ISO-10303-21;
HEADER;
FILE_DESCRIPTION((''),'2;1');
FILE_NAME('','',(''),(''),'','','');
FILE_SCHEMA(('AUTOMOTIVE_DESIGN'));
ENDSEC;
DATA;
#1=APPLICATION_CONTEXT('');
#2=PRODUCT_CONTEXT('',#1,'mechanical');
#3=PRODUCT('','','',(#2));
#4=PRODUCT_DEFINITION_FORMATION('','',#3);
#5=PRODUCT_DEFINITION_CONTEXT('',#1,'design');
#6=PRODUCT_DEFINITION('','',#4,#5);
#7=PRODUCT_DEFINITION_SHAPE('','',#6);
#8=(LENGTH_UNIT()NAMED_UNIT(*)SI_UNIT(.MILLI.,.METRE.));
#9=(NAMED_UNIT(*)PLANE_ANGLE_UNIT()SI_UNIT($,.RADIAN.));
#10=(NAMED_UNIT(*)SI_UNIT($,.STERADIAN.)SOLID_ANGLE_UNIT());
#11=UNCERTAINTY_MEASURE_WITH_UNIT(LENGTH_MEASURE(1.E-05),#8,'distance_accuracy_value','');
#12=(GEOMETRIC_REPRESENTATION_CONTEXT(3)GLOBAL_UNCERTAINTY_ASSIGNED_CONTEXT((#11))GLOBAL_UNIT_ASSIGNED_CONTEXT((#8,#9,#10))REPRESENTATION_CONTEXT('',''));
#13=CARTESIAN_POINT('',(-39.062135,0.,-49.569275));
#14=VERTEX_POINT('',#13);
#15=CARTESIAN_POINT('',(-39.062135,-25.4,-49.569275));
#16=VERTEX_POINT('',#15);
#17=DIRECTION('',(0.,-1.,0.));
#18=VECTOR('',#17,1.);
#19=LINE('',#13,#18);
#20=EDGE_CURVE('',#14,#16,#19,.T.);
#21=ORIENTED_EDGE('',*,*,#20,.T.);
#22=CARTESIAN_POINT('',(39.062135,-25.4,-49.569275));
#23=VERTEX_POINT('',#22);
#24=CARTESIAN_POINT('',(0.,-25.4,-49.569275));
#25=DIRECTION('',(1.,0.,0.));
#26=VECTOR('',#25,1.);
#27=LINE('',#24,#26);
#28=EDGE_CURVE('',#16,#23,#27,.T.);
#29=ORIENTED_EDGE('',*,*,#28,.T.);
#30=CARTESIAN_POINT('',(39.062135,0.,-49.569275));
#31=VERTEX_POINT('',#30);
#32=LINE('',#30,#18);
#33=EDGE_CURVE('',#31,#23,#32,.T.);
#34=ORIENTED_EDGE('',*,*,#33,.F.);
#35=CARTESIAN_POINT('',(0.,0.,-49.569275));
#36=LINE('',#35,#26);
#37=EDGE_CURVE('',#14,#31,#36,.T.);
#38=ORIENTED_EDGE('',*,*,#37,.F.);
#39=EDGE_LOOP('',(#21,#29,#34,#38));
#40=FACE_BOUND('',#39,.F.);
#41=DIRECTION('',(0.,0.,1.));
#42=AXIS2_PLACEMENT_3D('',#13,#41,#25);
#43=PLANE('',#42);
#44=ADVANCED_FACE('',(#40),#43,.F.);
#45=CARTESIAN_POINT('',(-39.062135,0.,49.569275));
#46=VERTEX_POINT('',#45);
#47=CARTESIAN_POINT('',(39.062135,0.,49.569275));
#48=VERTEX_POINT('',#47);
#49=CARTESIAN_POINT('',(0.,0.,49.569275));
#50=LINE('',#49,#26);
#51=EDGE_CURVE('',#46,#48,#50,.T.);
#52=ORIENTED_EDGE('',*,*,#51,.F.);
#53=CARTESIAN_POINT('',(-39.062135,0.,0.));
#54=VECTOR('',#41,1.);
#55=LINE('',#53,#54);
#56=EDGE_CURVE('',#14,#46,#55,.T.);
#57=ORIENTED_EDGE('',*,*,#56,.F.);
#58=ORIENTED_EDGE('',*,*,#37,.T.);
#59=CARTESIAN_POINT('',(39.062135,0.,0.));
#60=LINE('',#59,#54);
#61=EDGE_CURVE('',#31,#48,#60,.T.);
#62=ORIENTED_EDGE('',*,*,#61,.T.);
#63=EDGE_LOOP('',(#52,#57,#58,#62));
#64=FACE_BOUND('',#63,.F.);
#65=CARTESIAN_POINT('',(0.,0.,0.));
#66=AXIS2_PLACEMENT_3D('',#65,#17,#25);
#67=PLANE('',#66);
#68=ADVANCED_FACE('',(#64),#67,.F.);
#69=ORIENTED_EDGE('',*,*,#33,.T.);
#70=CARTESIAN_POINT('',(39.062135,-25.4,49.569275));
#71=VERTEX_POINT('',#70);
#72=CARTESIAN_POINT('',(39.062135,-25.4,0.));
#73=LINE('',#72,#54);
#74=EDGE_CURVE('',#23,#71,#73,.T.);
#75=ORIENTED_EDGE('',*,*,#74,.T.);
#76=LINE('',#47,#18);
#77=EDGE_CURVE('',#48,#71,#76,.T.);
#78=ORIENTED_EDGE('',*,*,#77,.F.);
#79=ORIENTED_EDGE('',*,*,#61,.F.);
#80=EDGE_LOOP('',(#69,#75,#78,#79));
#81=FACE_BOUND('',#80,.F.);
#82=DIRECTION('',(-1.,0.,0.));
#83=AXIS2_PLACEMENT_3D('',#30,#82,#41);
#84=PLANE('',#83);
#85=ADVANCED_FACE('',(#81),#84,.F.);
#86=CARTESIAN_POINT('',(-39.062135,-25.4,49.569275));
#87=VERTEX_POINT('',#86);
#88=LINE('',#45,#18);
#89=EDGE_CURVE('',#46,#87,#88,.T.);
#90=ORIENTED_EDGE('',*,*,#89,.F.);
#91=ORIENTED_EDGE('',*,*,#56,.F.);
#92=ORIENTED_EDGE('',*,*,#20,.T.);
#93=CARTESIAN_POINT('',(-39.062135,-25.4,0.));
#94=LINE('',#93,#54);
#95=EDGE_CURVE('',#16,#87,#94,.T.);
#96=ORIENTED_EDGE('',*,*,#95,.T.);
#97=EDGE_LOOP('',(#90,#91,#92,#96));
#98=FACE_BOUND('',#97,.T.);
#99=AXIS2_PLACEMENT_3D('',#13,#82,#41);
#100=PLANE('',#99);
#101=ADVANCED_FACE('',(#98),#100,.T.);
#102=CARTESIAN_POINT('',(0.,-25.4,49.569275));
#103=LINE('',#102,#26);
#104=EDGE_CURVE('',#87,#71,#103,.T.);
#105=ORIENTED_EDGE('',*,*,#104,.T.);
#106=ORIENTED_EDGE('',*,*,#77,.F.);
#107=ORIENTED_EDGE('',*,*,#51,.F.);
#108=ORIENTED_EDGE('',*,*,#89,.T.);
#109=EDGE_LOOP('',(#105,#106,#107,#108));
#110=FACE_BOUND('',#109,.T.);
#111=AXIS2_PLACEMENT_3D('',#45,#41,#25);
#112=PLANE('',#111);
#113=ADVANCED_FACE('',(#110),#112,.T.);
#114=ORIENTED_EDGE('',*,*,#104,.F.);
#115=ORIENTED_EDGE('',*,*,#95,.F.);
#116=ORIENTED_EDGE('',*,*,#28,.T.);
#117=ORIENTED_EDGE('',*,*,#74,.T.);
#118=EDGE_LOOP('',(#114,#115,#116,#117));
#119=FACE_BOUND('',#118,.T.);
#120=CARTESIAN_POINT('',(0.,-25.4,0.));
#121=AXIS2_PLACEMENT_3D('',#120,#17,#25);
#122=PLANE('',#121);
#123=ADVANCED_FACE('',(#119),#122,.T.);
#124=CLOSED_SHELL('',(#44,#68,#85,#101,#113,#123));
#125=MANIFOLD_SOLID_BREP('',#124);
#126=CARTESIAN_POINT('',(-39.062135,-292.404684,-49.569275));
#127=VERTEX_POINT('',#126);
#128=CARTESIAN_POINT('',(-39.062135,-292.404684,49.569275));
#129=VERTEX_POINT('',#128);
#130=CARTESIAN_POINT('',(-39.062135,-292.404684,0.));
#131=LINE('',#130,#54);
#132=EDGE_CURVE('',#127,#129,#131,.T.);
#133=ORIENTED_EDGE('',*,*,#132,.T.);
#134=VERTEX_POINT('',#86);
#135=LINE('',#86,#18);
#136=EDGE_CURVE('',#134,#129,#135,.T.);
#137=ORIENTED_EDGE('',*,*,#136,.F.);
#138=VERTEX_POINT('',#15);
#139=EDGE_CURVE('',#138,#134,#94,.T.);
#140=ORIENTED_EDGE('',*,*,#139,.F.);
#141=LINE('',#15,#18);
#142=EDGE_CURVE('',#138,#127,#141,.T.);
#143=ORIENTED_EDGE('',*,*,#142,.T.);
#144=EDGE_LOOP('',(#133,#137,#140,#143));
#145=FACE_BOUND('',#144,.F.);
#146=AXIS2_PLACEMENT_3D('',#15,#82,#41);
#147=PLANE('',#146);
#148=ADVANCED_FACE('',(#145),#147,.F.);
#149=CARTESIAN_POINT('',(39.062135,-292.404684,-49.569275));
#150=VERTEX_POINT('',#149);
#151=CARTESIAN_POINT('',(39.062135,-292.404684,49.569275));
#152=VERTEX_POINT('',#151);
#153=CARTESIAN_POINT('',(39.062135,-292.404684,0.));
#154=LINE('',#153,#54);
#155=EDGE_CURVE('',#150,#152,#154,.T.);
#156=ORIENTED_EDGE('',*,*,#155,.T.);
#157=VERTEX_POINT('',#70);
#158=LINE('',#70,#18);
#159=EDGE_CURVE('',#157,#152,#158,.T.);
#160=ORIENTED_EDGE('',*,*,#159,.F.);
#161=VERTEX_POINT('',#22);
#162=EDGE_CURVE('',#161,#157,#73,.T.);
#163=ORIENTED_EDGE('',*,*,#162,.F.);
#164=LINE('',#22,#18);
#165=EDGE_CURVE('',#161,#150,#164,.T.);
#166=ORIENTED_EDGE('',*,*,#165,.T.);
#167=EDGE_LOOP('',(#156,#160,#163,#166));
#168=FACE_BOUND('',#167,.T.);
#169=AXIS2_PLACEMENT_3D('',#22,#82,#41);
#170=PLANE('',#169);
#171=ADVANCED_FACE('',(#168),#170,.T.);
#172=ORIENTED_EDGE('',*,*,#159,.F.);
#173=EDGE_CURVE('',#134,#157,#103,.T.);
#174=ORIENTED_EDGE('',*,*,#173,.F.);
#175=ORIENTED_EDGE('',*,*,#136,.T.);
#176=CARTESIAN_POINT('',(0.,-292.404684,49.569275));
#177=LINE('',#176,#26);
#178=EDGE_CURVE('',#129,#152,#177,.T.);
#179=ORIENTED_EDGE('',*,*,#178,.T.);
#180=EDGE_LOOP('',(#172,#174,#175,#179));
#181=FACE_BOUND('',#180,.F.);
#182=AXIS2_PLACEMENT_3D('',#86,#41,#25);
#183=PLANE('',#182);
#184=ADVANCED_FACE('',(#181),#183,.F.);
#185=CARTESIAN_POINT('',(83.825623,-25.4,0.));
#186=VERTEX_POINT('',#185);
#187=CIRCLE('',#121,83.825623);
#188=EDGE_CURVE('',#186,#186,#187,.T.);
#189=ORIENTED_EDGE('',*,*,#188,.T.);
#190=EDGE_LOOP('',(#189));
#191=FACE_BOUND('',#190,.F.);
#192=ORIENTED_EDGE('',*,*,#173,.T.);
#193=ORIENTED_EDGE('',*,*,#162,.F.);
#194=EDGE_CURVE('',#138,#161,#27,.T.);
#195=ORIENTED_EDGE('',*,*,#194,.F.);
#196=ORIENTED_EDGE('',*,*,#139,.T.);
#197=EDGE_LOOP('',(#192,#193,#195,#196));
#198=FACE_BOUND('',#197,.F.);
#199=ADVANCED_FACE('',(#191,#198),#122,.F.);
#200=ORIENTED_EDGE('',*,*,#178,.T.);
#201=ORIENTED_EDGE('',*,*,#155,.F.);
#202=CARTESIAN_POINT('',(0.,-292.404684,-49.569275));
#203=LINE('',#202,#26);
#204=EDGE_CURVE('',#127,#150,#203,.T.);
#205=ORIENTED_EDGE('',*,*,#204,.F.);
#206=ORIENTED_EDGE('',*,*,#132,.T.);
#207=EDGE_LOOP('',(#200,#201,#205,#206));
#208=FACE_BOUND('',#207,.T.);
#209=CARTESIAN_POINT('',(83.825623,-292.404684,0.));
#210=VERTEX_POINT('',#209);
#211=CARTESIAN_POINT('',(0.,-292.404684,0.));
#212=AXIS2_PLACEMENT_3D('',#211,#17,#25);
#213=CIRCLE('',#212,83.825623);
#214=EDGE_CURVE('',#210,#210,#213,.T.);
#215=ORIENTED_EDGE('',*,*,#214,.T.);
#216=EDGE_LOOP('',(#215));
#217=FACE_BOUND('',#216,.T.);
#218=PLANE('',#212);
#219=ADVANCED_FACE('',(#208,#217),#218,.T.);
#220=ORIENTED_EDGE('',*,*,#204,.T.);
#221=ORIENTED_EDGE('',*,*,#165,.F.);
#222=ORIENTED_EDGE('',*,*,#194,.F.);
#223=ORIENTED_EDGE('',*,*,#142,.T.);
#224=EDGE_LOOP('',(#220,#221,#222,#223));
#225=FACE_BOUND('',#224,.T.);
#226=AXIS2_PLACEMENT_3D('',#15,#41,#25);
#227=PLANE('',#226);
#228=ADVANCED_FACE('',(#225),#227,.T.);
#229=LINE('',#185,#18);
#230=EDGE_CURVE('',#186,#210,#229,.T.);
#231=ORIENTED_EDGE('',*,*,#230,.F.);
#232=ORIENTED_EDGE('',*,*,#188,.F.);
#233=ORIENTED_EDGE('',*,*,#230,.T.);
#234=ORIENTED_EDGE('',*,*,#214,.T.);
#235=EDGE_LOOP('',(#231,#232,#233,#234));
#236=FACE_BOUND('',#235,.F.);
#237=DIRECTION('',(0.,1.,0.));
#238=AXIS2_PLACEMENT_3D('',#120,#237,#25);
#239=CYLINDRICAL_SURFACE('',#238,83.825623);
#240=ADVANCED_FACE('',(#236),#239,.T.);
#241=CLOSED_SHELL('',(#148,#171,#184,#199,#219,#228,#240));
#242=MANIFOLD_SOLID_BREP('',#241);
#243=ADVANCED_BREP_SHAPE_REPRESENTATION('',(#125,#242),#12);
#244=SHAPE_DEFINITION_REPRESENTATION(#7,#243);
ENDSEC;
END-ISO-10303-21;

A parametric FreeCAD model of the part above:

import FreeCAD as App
import Part
import Sketcher

V = App.Vector
Q = App.Units.Quantity


def add_polygon(sketch, points):
    """Adds a closed chain of lines whose ends are joined by coincident constraints."""
    first, n = sketch.GeometryCount, len(points)
    for a, b in zip(points, points[1:] + points[:1]):
        sketch.addGeometry(Part.LineSegment(App.Vector(*a, 0), App.Vector(*b, 0)), False)
    for i in range(n):
        sketch.addConstraint(Sketcher.Constraint("Coincident", first + i, 2, first + (i + 1) % n, 1))

doc = App.newDocument("Part")
body = doc.addObject("PartDesign::Body", "Body")

# Sketch on XZ plane
sketch1 = doc.addObject("Sketcher::SketchObject", "Sketch")
body.addObject(sketch1)
sketch1.AttachmentSupport = (doc.XZ_Plane, [""])
sketch1.MapMode = "FlatFace"
add_polygon(sketch1, [(-39, 50), (-39, -50), (39, -50), (39, 50)])  # lines 0-3
sketch1.addConstraint([
    Sketcher.Constraint("Vertical", 0),
    Sketcher.Constraint("Horizontal", 1),
    Sketcher.Constraint("Vertical", 2),
    Sketcher.Constraint("Horizontal", 3),
    Sketcher.Constraint("Symmetric", 0, 2, 2, 2, -1, 1),
    Sketcher.Constraint("DistanceX", 1, 1, 1, 2, Q("78.12427 mm")),
    Sketcher.Constraint("DistanceY", 0, 2, 0, 1, Q("99.13855 mm")),
])
pad1 = doc.addObject("PartDesign::Pad", "Pad")
body.addObject(pad1)
pad1.Profile = sketch1
pad1.Length = Q("1 in")
body2 = doc.addObject("PartDesign::Body", "Body001")

# Sketch on XZ plane
sketch2 = doc.addObject("Sketcher::SketchObject", "Sketch001")
body2.addObject(sketch2)
sketch2.AttachmentSupport = (doc.getObject("XZ_Plane001"), [""])
sketch2.MapMode = "FlatFace"
sketch2.AttachmentOffset = App.Placement(V(0, 0, 1 * 25.4), App.Rotation())
sketch2.addGeometry(Part.Circle(V(0, 0, 0), V(0, 0, 1), 84), False)  # 0
add_polygon(sketch2, [(39, -50), (-39, -50), (-39, 50), (39, 50)])  # lines 1-4
sketch2.addConstraint([
    Sketcher.Constraint("Horizontal", 1),
    Sketcher.Constraint("Vertical", 2),
    Sketcher.Constraint("Horizontal", 3),
    Sketcher.Constraint("Vertical", 4),
    Sketcher.Constraint("Coincident", 0, 3, -1, 1),
    Sketcher.Constraint("Symmetric", 1, 2, 3, 2, -1, 1),
    Sketcher.Constraint("Diameter", 0, Q("167.651246 mm")),
    Sketcher.Constraint("DistanceX", 1, 2, 1, 1, Q("78.12427 mm")),
    Sketcher.Constraint("DistanceY", 2, 1, 2, 2, Q("99.13855 mm")),
])
pad2 = doc.addObject("PartDesign::Pad", "Pad001")
body2.addObject(pad2)
pad2.Profile = sketch2
pad2.Length = 267.004684

doc.recompute()
